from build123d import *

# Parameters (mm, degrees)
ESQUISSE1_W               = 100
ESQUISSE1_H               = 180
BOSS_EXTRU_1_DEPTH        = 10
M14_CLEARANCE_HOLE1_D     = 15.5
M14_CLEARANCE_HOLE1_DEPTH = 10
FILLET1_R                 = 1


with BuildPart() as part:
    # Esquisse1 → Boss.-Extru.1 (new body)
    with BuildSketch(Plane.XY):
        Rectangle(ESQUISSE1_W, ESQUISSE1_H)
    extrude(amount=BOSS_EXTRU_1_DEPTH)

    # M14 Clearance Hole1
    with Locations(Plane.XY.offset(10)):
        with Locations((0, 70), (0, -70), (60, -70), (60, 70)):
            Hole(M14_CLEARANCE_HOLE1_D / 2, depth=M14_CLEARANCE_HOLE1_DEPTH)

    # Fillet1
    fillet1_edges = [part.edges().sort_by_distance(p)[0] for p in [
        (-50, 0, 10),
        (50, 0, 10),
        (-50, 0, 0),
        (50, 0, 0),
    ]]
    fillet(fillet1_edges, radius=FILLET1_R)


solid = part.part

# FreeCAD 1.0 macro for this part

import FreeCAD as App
import Part
import Sketcher
Q = App.Units.Quantity


def edges_at(feature, points):
    """Names of the edges that pass closest to the given points."""
    edges = feature.Shape.Edges
    near = lambda p: min(range(len(edges)), key=lambda i: edges[i].distToShape(Part.Vertex(*p))[0])
    return sorted({f"Edge{near(p) + 1}" for p in points})


def add_polygon(sketch, points):
    """Adds a closed chain of lines whose ends are joined by coincident constraints."""
    first, n = sketch.GeometryCount, len(points)
    for a, b in zip(points, points[1:] + points[:1]):
        sketch.addGeometry(Part.LineSegment(App.Vector(*a, 0), App.Vector(*b, 0)), False)
    for i in range(n):
        sketch.addConstraint(Sketcher.Constraint("Coincident", first + i, 2, first + (i + 1) % n, 1))

doc = App.newDocument("Part")
body = doc.addObject("PartDesign::Body", "Body")

sketch1 = body.newObject("Sketcher::SketchObject", "Sketch")
sketch1.AttachmentSupport = (doc.getObject("XY_Plane"), [""])
sketch1.MapMode = "FlatFace"
add_polygon(sketch1, [(-50, 90), (-50, -90), (50, -90), (50, 90)])
sketch1.addConstraint(Sketcher.Constraint("Vertical", 0))
sketch1.addConstraint(Sketcher.Constraint("Horizontal", 1))
sketch1.addConstraint(Sketcher.Constraint("Vertical", 2))
sketch1.addConstraint(Sketcher.Constraint("Horizontal", 3))
sketch1.addConstraint(Sketcher.Constraint("Symmetric", 0, 2, 2, 2, -1, 1))
sketch1.addConstraint(Sketcher.Constraint("DistanceX", 1, 1, 1, 2, Q("100 mm")))
sketch1.addConstraint(Sketcher.Constraint("DistanceY", 0, 2, 0, 1, Q("180 mm")))
pad1 = body.newObject("PartDesign::Pad", "Pad")
pad1.Profile = sketch1
pad1.Length = 10

sketch2 = body.newObject("Sketcher::SketchObject", "Sketch001")
sketch2.AttachmentSupport = (doc.getObject("XY_Plane"), [""])
sketch2.MapMode = "FlatFace"
sketch2.AttachmentOffset = App.Placement(App.Vector(0, 0, 10), App.Rotation())
sketch2.addGeometry(Part.Circle(App.Vector(0, 70, 0), App.Vector(0, 0, 1), 8), False)
sketch2.addGeometry(Part.Circle(App.Vector(0, -70, 0), App.Vector(0, 0, 1), 8), False)
sketch2.addGeometry(Part.Circle(App.Vector(60, -70, 0), App.Vector(0, 0, 1), 8), False)
sketch2.addGeometry(Part.Circle(App.Vector(60, 70, 0), App.Vector(0, 0, 1), 8), False)
sketch2.addConstraint(Sketcher.Constraint("Equal", 0, 1))
sketch2.addConstraint(Sketcher.Constraint("Equal", 1, 2))
sketch2.addConstraint(Sketcher.Constraint("Equal", 2, 3))
sketch2.addConstraint(Sketcher.Constraint("Symmetric", 0, 3, 1, 3, -1, 1))
sketch2.addConstraint(Sketcher.Constraint("Symmetric", 2, 3, 3, 3, -1))
sketch2.addConstraint(Sketcher.Constraint("PointOnObject", 0, 3, -2))
sketch2.addConstraint(Sketcher.Constraint("Horizontal", 1, 3, 2, 3))
sketch2.addConstraint(Sketcher.Constraint("Diameter", 0, Q("15.5 mm")))
sketch2.addConstraint(Sketcher.Constraint("DistanceY", -1, 1, 0, 3, Q("70 mm")))
sketch2.addConstraint(Sketcher.Constraint("DistanceX", -1, 1, 2, 3, Q("60 mm")))
doc.recompute()
hole = body.newObject("PartDesign::Hole", "Hole")
hole.Profile = sketch2
hole.ThreadType = "None"
hole.Diameter = 15.5
hole.DepthType = "Dimension"
hole.Depth = 10
hole.DrillPoint = "Flat"
doc.recompute()

fillet = body.newObject("PartDesign::Fillet", "Fillet")
fillet.Base = (hole, edges_at(hole, [
    (-50, 0, 10),
    (50, 0, 10),
    (-50, 0, 0),
    (50, 0, 0),
]))
fillet.Radius = 1

doc.recompute()
